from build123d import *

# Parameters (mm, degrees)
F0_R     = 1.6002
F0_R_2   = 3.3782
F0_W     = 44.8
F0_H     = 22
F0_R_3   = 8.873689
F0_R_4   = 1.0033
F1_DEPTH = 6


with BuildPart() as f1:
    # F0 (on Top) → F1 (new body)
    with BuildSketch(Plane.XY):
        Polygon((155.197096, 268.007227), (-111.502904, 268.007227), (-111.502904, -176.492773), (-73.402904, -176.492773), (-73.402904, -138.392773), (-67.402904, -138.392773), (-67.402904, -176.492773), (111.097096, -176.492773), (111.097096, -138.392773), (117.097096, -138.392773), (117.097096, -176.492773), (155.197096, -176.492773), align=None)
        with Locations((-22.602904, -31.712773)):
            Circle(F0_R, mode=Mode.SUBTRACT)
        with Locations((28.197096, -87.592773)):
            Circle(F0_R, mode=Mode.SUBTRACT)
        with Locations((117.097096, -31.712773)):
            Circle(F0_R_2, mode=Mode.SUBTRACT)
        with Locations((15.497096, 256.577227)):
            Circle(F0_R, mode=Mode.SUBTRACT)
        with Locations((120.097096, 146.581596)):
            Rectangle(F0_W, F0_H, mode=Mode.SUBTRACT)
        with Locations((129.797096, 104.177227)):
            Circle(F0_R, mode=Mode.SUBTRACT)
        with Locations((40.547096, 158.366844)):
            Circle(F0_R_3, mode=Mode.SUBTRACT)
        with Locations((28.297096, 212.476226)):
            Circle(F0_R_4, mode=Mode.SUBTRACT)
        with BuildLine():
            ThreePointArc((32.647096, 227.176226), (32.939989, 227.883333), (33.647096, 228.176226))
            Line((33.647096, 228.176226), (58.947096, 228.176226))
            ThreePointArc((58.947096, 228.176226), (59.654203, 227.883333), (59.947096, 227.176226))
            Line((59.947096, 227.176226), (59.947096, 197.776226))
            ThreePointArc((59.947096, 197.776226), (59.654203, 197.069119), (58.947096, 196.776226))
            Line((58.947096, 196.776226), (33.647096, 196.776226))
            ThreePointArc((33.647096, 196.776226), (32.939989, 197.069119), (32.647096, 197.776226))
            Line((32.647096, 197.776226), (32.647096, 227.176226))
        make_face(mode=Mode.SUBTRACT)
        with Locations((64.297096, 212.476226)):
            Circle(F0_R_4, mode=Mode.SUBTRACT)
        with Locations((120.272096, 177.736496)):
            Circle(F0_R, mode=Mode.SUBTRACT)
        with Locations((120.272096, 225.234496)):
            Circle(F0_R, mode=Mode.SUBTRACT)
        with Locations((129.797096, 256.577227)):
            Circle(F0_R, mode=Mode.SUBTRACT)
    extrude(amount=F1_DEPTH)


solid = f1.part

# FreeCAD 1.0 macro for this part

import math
import FreeCAD as App
import Part
import Sketcher

doc = App.newDocument("Part")
body = doc.addObject("PartDesign::Body", "Body")

sketch1 = body.newObject("Sketcher::SketchObject", "Sketch")
sketch1.AttachmentSupport = (doc.getObject("XY_Plane"), [""])
sketch1.MapMode = "FlatFace"
sketch1.addGeometry([
    Part.LineSegment(App.Vector(155.2, 268, 0), App.Vector(-111.5, 268, 0)),
    Part.LineSegment(App.Vector(-111.5, 268, 0), App.Vector(-111.5, -176.5, 0)),
    Part.LineSegment(App.Vector(-111.5, -176.5, 0), App.Vector(-73.4, -176.5, 0)),
    Part.LineSegment(App.Vector(-73.4, -176.5, 0), App.Vector(-73.4, -138.4, 0)),
    Part.LineSegment(App.Vector(-73.4, -138.4, 0), App.Vector(-67.4, -138.4, 0)),
    Part.LineSegment(App.Vector(-67.4, -138.4, 0), App.Vector(-67.4, -176.5, 0)),
    Part.LineSegment(App.Vector(-67.4, -176.5, 0), App.Vector(111.1, -176.5, 0)),
    Part.LineSegment(App.Vector(111.1, -176.5, 0), App.Vector(111.1, -138.4, 0)),
    Part.LineSegment(App.Vector(111.1, -138.4, 0), App.Vector(117.1, -138.4, 0)),
    Part.LineSegment(App.Vector(117.1, -138.4, 0), App.Vector(117.1, -176.5, 0)),
    Part.LineSegment(App.Vector(117.1, -176.5, 0), App.Vector(155.2, -176.5, 0)),
    Part.LineSegment(App.Vector(155.2, -176.5, 0), App.Vector(155.2, 268, 0)),
    Part.Circle(App.Vector(-22.6, -31.7, 0), App.Vector(0, 0, 1), 1.6),
    Part.Circle(App.Vector(28.2, -87.6, 0), App.Vector(0, 0, 1), 1.6),
    Part.Circle(App.Vector(117.1, -31.7, 0), App.Vector(0, 0, 1), 3.4),
    Part.Circle(App.Vector(40.5, 158.4, 0), App.Vector(0, 0, 1), 8.9),
    Part.Circle(App.Vector(15.5, 256.6, 0), App.Vector(0, 0, 1), 1.6),
    Part.Circle(App.Vector(28.3, 212.5, 0), App.Vector(0, 0, 1), 1),
    Part.LineSegment(App.Vector(32.6, 197.8, 0), App.Vector(32.6, 227.2, 0)),
    Part.ArcOfCircle(Part.Circle(App.Vector(33.6, 227.2, 0), App.Vector(0, 0, 1), 1), math.radians(90), math.radians(180)),
    Part.LineSegment(App.Vector(33.6, 228.2, 0), App.Vector(58.9, 228.2, 0)),
    Part.ArcOfCircle(Part.Circle(App.Vector(58.9, 227.2, 0), App.Vector(0, 0, 1), 1), math.radians(0), math.radians(90)),
    Part.LineSegment(App.Vector(59.9, 227.2, 0), App.Vector(59.9, 197.8, 0)),
    Part.ArcOfCircle(Part.Circle(App.Vector(58.9, 197.8, 0), App.Vector(0, 0, 1), 1), math.radians(-90), math.radians(0)),
    Part.LineSegment(App.Vector(58.9, 196.8, 0), App.Vector(33.6, 196.8, 0)),
    Part.ArcOfCircle(Part.Circle(App.Vector(33.6, 197.8, 0), App.Vector(0, 0, 1), 1), math.radians(180), math.radians(270)),
    Part.Circle(App.Vector(129.8, 104.2, 0), App.Vector(0, 0, 1), 1.6),
    Part.LineSegment(App.Vector(142.5, 135.6, 0), App.Vector(97.7, 135.6, 0)),
    Part.LineSegment(App.Vector(97.7, 135.6, 0), App.Vector(97.7, 157.6, 0)),
    Part.LineSegment(App.Vector(97.7, 157.6, 0), App.Vector(142.5, 157.6, 0)),
    Part.LineSegment(App.Vector(142.5, 157.6, 0), App.Vector(142.5, 135.6, 0)),
    Part.Circle(App.Vector(64.3, 212.5, 0), App.Vector(0, 0, 1), 1),
    Part.Circle(App.Vector(120.3, 177.7, 0), App.Vector(0, 0, 1), 1.6),
    Part.Circle(App.Vector(120.3, 225.2, 0), App.Vector(0, 0, 1), 1.6),
    Part.Circle(App.Vector(129.8, 256.6, 0), App.Vector(0, 0, 1), 1.6),
], False)
sketch1.addConstraint([
    Sketcher.Constraint("Coincident", 0, 2, 1, 1),
    Sketcher.Constraint("Coincident", 1, 2, 2, 1),
    Sketcher.Constraint("Coincident", 2, 2, 3, 1),
    Sketcher.Constraint("Coincident", 3, 2, 4, 1),
    Sketcher.Constraint("Coincident", 4, 2, 5, 1),
    Sketcher.Constraint("Coincident", 5, 2, 6, 1),
    Sketcher.Constraint("Coincident", 6, 2, 7, 1),
    Sketcher.Constraint("Coincident", 7, 2, 8, 1),
    Sketcher.Constraint("Coincident", 8, 2, 9, 1),
    Sketcher.Constraint("Coincident", 9, 2, 10, 1),
    Sketcher.Constraint("Coincident", 10, 2, 11, 1),
    Sketcher.Constraint("Coincident", 11, 2, 0, 1),
    Sketcher.Constraint("Tangent", 18, 2, 19, 2),
    Sketcher.Constraint("Tangent", 19, 1, 20, 1),
    Sketcher.Constraint("Tangent", 20, 2, 21, 2),
    Sketcher.Constraint("Tangent", 21, 1, 22, 1),
    Sketcher.Constraint("Tangent", 22, 2, 23, 2),
    Sketcher.Constraint("Tangent", 23, 1, 24, 1),
    Sketcher.Constraint("Tangent", 24, 2, 25, 2),
    Sketcher.Constraint("Tangent", 25, 1, 18, 1),
    Sketcher.Constraint("Coincident", 27, 2, 28, 1),
    Sketcher.Constraint("Coincident", 28, 2, 29, 1),
    Sketcher.Constraint("Coincident", 29, 2, 30, 1),
    Sketcher.Constraint("Coincident", 30, 2, 27, 1),
    Sketcher.Constraint("Horizontal", 0),
    Sketcher.Constraint("Vertical", 1),
    Sketcher.Constraint("Horizontal", 2),
    Sketcher.Constraint("Vertical", 3),
    Sketcher.Constraint("Horizontal", 4),
    Sketcher.Constraint("Vertical", 5),
    Sketcher.Constraint("Horizontal", 6),
    Sketcher.Constraint("Vertical", 7),
    Sketcher.Constraint("Horizontal", 8),
    Sketcher.Constraint("Vertical", 9),
    Sketcher.Constraint("Horizontal", 10),
    Sketcher.Constraint("Vertical", 11),
    Sketcher.Constraint("Vertical", 18),
    Sketcher.Constraint("Horizontal", 20),
    Sketcher.Constraint("Vertical", 22),
    Sketcher.Constraint("Horizontal", 24),
    Sketcher.Constraint("Horizontal", 27),
    Sketcher.Constraint("Vertical", 28),
    Sketcher.Constraint("Horizontal", 29),
    Sketcher.Constraint("Vertical", 30),
    Sketcher.Constraint("Equal", 12, 13),
    Sketcher.Constraint("Equal", 13, 16),
    Sketcher.Constraint("Equal", 19, 21),
    Sketcher.Constraint("Equal", 21, 23),
    Sketcher.Constraint("Equal", 23, 25),
    Sketcher.Constraint("Equal", 16, 26),
    Sketcher.Constraint("Equal", 17, 31),
    Sketcher.Constraint("Equal", 26, 32),
    Sketcher.Constraint("Equal", 32, 33),
    Sketcher.Constraint("Equal", 33, 34),
    Sketcher.Constraint("Horizontal", 12, 3, 14, 3),
    Sketcher.Constraint("Horizontal", 17, 3, 31, 3),
    Sketcher.Constraint("Horizontal", 16, 3, 34, 3),
    Sketcher.Constraint("Horizontal", 2, 2, 5, 2),
    Sketcher.Constraint("Horizontal", 4, 2, 7, 2),
    Sketcher.Constraint("Horizontal", 6, 2, 9, 2),
    Sketcher.Constraint("Vertical", 32, 3, 33, 3),
    Sketcher.Constraint("Vertical", 26, 3, 34, 3),
    Sketcher.Constraint("Vertical", 14, 3, 8, 2),
    Sketcher.Constraint("Equal", 4, 8),
    Sketcher.Constraint("Equal", 2, 10),
    Sketcher.Constraint("Equal", 10, 3),
    Sketcher.Constraint("Radius", 19, 0.999999),
    Sketcher.Constraint("DistanceX", 4, 1, 4, 2, 6.0),
    Sketcher.Constraint("DistanceY", 28, 1, 28, 2, 22.0),
    Sketcher.Constraint("DistanceX", 0, 2, 0, 1, 266.7),
    Sketcher.Constraint("DistanceX", 2, 1, 2, 2, 38.1),
    Sketcher.Constraint("DistanceX", 20, 1, 20, 2, 25.3),
    Sketcher.Constraint("DistanceX", 27, 2, 27, 1, 44.8),
    Sketcher.Constraint("DistanceY", 1, 2, 1, 1, 444.5),
    Sketcher.Constraint("DistanceY", 18, 1, 18, 2, 29.4),
    Sketcher.Constraint("DistanceX", 17, 3, 31, 3, 36.0),
    Sketcher.Constraint("DistanceX", 0, 2, 16, 3, 127.0),
    Sketcher.Constraint("Diameter", 12, 3.2004),
    Sketcher.Constraint("Diameter", 14, 6.7564),
    Sketcher.Constraint("Diameter", 17, 2.0066),
    Sketcher.Constraint("DistanceX", 12, 3, 13, 3, 50.8),
    Sketcher.Constraint("DistanceX", 13, 3, 14, 3, 88.9),
    Sketcher.Constraint("DistanceX", 16, 3, 17, 3, 12.8),
    Sketcher.Constraint("DistanceY", 17, 3, 19, 3, 14.700001),
    Sketcher.Constraint("DistanceX", 19, 3, 15, 3, 6.900001),
    Sketcher.Constraint("DistanceX", 14, 3, 26, 3, 12.7),
    Sketcher.Constraint("DistanceY", 1, 2, 13, 3, 88.9),
    Sketcher.Constraint("DistanceX", 27, 2, 26, 3, 32.1),
    Sketcher.Constraint("Diameter", 15, 17.747378),
    Sketcher.Constraint("DistanceY", 13, 3, 12, 3, 55.88),
    Sketcher.Constraint("DistanceX", 12, 3, 15, 3, 63.15),
    Sketcher.Constraint("DistanceY", 12, 3, 16, 3, 288.29),
    Sketcher.Constraint("DistanceY", 14, 3, 26, 3, 135.89),
    Sketcher.Constraint("DistanceY", 17, 3, 16, 3, 44.101001),
    Sketcher.Constraint("DistanceX", 23, 3, 32, 3, 61.324999),
    Sketcher.Constraint("DistanceY", 32, 3, 33, 3, 47.498),
    Sketcher.Constraint("DistanceY", 27, 2, 32, 3, 42.1549),
    Sketcher.Constraint("DistanceY", 15, 3, 23, 3, 39.409381),
    Sketcher.Constraint("DistanceY", 32, 3, 23, 3, 20.039729),
    Sketcher.Constraint("DistanceX", 12, 3, -1, 1, 22.602904),
    Sketcher.Constraint("DistanceY", 12, 3, -1, 1, 31.712773),
])
pad1 = body.newObject("PartDesign::Pad", "Pad")
pad1.Profile = sketch1
pad1.Length = 6

doc.recompute()
